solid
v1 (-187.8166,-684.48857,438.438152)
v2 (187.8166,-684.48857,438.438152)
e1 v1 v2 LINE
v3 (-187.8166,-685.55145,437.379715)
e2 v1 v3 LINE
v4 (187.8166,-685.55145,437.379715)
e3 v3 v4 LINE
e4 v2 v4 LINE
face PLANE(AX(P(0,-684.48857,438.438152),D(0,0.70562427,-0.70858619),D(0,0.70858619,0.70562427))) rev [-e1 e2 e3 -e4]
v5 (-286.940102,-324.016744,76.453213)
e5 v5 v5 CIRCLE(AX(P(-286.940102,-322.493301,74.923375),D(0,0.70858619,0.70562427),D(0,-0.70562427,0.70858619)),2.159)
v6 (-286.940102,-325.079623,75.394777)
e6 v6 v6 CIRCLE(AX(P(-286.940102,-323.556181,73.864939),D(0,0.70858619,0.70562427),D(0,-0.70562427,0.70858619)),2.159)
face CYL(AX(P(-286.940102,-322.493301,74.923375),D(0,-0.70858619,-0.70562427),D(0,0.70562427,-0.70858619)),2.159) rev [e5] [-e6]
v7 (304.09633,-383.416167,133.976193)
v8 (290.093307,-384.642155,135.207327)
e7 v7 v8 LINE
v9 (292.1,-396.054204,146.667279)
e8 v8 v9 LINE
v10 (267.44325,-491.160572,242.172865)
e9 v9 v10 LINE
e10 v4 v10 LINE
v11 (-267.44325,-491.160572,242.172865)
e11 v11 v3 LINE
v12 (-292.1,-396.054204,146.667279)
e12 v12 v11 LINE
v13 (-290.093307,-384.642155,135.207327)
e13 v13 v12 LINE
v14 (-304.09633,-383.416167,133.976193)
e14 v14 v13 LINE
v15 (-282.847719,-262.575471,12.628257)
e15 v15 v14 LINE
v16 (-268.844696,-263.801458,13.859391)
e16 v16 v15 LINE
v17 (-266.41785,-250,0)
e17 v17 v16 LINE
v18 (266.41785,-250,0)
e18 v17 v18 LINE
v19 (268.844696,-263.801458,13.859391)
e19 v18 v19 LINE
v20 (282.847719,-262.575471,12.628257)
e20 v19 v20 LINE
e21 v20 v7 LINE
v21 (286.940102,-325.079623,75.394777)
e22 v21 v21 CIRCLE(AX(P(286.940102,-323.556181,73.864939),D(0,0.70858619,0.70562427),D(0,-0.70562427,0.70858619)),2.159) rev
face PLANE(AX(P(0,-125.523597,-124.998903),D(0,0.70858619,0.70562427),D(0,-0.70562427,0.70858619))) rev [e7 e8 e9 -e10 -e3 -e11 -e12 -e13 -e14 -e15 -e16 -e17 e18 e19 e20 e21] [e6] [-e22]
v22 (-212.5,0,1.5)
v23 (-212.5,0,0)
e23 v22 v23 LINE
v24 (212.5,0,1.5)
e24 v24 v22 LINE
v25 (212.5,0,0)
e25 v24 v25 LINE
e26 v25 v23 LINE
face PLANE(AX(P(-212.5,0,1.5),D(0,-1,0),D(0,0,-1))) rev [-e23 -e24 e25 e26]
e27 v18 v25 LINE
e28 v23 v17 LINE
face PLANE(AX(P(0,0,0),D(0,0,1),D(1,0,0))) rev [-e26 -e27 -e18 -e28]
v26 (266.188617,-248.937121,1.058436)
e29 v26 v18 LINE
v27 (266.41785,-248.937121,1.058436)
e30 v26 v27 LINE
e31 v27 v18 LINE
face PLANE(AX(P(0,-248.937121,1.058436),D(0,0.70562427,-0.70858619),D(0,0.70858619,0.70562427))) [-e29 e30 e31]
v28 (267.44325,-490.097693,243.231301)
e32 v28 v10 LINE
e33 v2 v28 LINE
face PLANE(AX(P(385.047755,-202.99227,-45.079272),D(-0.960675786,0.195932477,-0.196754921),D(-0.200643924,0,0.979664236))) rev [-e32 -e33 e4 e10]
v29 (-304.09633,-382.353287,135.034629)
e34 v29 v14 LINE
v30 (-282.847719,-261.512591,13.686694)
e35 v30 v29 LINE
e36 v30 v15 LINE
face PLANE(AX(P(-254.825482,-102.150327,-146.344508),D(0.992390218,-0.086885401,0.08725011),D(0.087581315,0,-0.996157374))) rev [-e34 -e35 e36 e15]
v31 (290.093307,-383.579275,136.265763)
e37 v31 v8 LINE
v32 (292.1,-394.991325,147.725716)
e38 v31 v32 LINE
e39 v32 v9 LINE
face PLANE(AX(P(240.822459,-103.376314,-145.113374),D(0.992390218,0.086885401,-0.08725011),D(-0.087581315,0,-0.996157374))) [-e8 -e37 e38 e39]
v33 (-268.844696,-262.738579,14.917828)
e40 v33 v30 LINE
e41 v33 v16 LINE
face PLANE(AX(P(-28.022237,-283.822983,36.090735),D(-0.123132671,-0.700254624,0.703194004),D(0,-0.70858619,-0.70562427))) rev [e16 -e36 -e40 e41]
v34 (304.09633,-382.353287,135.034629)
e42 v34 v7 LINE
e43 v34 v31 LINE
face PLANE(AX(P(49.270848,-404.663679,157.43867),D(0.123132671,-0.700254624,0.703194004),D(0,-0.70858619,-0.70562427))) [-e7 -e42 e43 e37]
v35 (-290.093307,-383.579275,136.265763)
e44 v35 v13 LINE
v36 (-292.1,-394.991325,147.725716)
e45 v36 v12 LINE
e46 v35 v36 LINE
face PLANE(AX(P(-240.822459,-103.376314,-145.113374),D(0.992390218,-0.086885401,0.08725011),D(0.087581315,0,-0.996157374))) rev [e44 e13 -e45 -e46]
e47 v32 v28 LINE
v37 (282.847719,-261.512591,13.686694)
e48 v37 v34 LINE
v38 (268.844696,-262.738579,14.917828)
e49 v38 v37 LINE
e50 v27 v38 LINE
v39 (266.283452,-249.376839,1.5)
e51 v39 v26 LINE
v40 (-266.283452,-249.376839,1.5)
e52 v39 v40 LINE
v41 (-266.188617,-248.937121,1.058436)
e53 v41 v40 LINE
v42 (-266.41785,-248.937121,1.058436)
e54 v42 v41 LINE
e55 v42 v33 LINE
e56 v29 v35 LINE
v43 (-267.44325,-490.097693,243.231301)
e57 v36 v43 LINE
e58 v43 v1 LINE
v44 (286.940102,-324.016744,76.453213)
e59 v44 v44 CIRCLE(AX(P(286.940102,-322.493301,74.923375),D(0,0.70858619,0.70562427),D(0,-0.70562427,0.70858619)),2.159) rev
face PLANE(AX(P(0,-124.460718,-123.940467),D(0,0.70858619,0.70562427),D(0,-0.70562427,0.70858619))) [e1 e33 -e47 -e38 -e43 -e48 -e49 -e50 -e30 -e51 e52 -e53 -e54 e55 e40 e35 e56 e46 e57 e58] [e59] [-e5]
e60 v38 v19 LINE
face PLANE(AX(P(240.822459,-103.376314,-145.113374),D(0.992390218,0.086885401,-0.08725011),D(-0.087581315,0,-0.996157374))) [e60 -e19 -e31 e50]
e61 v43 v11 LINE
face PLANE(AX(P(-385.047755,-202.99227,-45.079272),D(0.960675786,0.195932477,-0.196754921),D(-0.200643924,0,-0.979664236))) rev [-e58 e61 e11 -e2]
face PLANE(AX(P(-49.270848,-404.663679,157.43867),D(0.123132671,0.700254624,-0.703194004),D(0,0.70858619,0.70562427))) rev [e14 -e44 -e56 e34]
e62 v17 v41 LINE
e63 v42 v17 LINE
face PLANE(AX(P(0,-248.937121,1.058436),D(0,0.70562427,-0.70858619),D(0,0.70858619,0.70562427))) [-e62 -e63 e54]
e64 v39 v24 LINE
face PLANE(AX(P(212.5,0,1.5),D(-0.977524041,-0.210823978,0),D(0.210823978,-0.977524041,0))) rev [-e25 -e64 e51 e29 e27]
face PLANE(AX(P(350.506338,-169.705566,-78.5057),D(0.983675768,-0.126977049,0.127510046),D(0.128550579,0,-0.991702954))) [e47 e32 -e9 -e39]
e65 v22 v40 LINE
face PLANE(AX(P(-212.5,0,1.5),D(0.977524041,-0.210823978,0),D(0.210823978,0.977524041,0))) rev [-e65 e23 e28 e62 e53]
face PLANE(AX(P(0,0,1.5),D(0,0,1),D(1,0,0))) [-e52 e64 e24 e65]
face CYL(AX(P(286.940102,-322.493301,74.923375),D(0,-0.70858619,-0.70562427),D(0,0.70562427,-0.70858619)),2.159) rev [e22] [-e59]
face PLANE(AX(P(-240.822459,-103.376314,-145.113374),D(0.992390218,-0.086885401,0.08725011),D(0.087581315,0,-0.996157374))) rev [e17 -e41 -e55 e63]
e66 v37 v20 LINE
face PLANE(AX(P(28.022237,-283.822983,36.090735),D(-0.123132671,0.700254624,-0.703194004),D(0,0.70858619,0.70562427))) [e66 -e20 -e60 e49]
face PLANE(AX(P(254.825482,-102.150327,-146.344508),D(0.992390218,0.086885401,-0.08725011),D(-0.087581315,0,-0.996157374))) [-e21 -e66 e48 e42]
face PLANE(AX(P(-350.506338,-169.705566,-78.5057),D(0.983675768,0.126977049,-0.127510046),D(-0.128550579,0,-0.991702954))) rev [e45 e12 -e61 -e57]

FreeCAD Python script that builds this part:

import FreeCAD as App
import Part
import Sketcher

V = App.Vector
Q = App.Units.Quantity

doc = App.newDocument("Part")
body = doc.addObject("PartDesign::Body", "Body")

# Sketch on XY plane
sketch1 = body.newObject("Sketcher::SketchObject", "Sketch")
sketch1.AttachmentSupport = (doc.getObject("XY_Plane"), [""])
sketch1.MapMode = "FlatFace"
sketch1.addGeometry([
    Part.LineSegment(V(212, 0, 0), V(-212, 0, 0)),
    Part.LineSegment(V(-212, 0, 0), V(-266, -250, 0)),
    Part.LineSegment(V(-266, -250, 0), V(266, -250, 0)),
    Part.LineSegment(V(266, -250, 0), V(212, 0, 0)),
], False)
sketch1.addConstraint([
    Sketcher.Constraint("Coincident", 0, 2, 1, 1),
    Sketcher.Constraint("Coincident", 1, 2, 2, 1),
    Sketcher.Constraint("Coincident", 2, 2, 3, 1),
    Sketcher.Constraint("Coincident", 3, 2, 0, 1),
    Sketcher.Constraint("Horizontal", 0),
    Sketcher.Constraint("Horizontal", 2),
    Sketcher.Constraint("Symmetric", 0, 2, 3, 2, -1, 1),
    Sketcher.Constraint("Equal", 1, 3),
    Sketcher.Constraint("DistanceX", 0, 2, 0, 1, Q("425 mm")),
    Sketcher.Constraint("DistanceY", 1, 2, -1, 1, Q("250 mm")),
    Sketcher.Constraint("DistanceX", 2, 1, 2, 2, Q("532.8357 mm")),
])
pad1 = body.newObject("PartDesign::Pad", "Pad")
pad1.Profile = sketch1
pad1.Length = 1.5

# Sketch on an angled plane
sketch2 = body.newObject("Sketcher::SketchObject", "Sketch001")
sketch2.Placement = App.Placement(V(0, -125.523597, -124.998903), App.Rotation(V(1, 0, 0), V(0, 0.70562427, -0.70858619), V(0, 0.70858619, 0.70562427), "ZXY"))
sketch2.addGeometry([
    Part.LineSegment(V(-187.8, -793.7, 0), V(187.8, -793.7, 0)),  # 0
    Part.LineSegment(V(187.8, -793.7, 0), V(267.4, -518.2, 0)),  # 1
    Part.LineSegment(V(267.4, -518.2, 0), V(292.1, -383.4, 0)),  # 2
    Part.LineSegment(V(292.1, -383.4, 0), V(290.1, -367.2, 0)),  # 3
    Part.LineSegment(V(290.1, -367.2, 0), V(304.1, -365.5, 0)),  # 4
    Part.LineSegment(V(304.1, -365.5, 0), V(282.8, -194.2, 0)),  # 5
    Part.LineSegment(V(282.8, -194.2, 0), V(268.8, -196, 0)),  # 6
    Part.LineSegment(V(268.8, -196, 0), V(266.4, -176.4, 0)),  # 7
    Part.LineSegment(V(266.4, -176.4, 0), V(-266.4, -176.4, 0)),  # 8
    Part.LineSegment(V(-266.4, -176.4, 0), V(-268.8, -196, 0)),  # 9
    Part.LineSegment(V(-268.8, -196, 0), V(-282.8, -194.2, 0)),  # 10
    Part.LineSegment(V(-282.8, -194.2, 0), V(-304.1, -365.5, 0)),  # 11
    Part.LineSegment(V(-304.1, -365.5, 0), V(-290.1, -367.2, 0)),  # 12
    Part.LineSegment(V(-290.1, -367.2, 0), V(-292.1, -383.4, 0)),  # 13
    Part.LineSegment(V(-292.1, -383.4, 0), V(-267.4, -518.2, 0)),  # 14
    Part.LineSegment(V(-267.4, -518.2, 0), V(-187.8, -793.7, 0)),  # 15
    Part.Circle(V(-286.9, -280.6, 0), V(0, 0, 1), 2.2),  # 16
    Part.Circle(V(286.9, -280.6, 0), V(0, 0, 1), 2.2),  # 17
], False)
sketch2.addConstraint([
    Sketcher.Constraint("Coincident", 0, 2, 1, 1),
    Sketcher.Constraint("Coincident", 1, 2, 2, 1),
    Sketcher.Constraint("Coincident", 2, 2, 3, 1),
    Sketcher.Constraint("Coincident", 3, 2, 4, 1),
    Sketcher.Constraint("Coincident", 4, 2, 5, 1),
    Sketcher.Constraint("Coincident", 5, 2, 6, 1),
    Sketcher.Constraint("Coincident", 6, 2, 7, 1),
    Sketcher.Constraint("Coincident", 7, 2, 8, 1),
    Sketcher.Constraint("Coincident", 8, 2, 9, 1),
    Sketcher.Constraint("Coincident", 9, 2, 10, 1),
    Sketcher.Constraint("Coincident", 10, 2, 11, 1),
    Sketcher.Constraint("Coincident", 11, 2, 12, 1),
    Sketcher.Constraint("Coincident", 12, 2, 13, 1),
    Sketcher.Constraint("Coincident", 13, 2, 14, 1),
    Sketcher.Constraint("Coincident", 14, 2, 15, 1),
    Sketcher.Constraint("Coincident", 15, 2, 0, 1),
    Sketcher.Constraint("Horizontal", 0),
    Sketcher.Constraint("Horizontal", 8),
    Sketcher.Constraint("Equal", 16, 17),
    Sketcher.Constraint("Symmetric", 16, 3, 17, 3, -2),
    Sketcher.Constraint("Symmetric", 6, 2, 9, 2, -2),
    Sketcher.Constraint("Symmetric", 5, 2, 10, 2, -2),
    Sketcher.Constraint("Symmetric", 4, 2, 11, 2, -2),
    Sketcher.Constraint("Symmetric", 3, 2, 12, 2, -2),
    Sketcher.Constraint("Symmetric", 2, 2, 13, 2, -2),
    Sketcher.Constraint("Symmetric", 1, 2, 14, 2, -2),
    Sketcher.Constraint("Perpendicular", 3, 4),
    Sketcher.Constraint("Perpendicular", 4, 5),
    Sketcher.Constraint("Perpendicular", 5, 6),
    Sketcher.Constraint("Perpendicular", 6, 7),
    Sketcher.Constraint("Perpendicular", 9, 10),
    Sketcher.Constraint("Equal", 4, 6),
    Sketcher.Constraint("Equal", 1, 15),
    Sketcher.Constraint("Diameter", 16, Q("4.318 mm")),
    Sketcher.Constraint("DistanceX", -1, 1, 2, 2, Q("292.1 mm")),
    Sketcher.Constraint("Distance", 3, Q("16.297 mm")),
    Sketcher.Constraint("DistanceX", 0, 1, 0, 2, Q("375.6332 mm")),
    Sketcher.Constraint("DistanceX", 8, 2, 8, 1, Q("532.8357 mm")),
    Sketcher.Constraint("Distance", 4, Q("14.1104 mm")),
    Sketcher.Constraint("Distance", 7, Q("19.7092 mm")),
    Sketcher.Constraint("DistanceY", 0, 2, 1, 2, Q("275.4878 mm")),
    Sketcher.Constraint("DistanceY", 1, 2, 2, 2, Q("134.7833 mm")),
    Sketcher.Constraint("DistanceY", 4, 2, 5, 2, Q("171.253599 mm")),
    Sketcher.Constraint("DistanceY", 17, 3, 7, 2, Q("104.242702 mm")),
    Sketcher.Constraint("Distance", 1, Q("286.764592 mm")),
    Sketcher.Constraint("DistanceY", 16, 3, -1, 1, Q("280.648769 mm")),
    Sketcher.Constraint("DistanceX", 16, 3, 3, 2, Q("577.033409 mm")),
])
pad2 = body.newObject("PartDesign::Pad", "Pad001")
pad2.Profile = sketch2
pad2.Length = 1.5

doc.recompute()
